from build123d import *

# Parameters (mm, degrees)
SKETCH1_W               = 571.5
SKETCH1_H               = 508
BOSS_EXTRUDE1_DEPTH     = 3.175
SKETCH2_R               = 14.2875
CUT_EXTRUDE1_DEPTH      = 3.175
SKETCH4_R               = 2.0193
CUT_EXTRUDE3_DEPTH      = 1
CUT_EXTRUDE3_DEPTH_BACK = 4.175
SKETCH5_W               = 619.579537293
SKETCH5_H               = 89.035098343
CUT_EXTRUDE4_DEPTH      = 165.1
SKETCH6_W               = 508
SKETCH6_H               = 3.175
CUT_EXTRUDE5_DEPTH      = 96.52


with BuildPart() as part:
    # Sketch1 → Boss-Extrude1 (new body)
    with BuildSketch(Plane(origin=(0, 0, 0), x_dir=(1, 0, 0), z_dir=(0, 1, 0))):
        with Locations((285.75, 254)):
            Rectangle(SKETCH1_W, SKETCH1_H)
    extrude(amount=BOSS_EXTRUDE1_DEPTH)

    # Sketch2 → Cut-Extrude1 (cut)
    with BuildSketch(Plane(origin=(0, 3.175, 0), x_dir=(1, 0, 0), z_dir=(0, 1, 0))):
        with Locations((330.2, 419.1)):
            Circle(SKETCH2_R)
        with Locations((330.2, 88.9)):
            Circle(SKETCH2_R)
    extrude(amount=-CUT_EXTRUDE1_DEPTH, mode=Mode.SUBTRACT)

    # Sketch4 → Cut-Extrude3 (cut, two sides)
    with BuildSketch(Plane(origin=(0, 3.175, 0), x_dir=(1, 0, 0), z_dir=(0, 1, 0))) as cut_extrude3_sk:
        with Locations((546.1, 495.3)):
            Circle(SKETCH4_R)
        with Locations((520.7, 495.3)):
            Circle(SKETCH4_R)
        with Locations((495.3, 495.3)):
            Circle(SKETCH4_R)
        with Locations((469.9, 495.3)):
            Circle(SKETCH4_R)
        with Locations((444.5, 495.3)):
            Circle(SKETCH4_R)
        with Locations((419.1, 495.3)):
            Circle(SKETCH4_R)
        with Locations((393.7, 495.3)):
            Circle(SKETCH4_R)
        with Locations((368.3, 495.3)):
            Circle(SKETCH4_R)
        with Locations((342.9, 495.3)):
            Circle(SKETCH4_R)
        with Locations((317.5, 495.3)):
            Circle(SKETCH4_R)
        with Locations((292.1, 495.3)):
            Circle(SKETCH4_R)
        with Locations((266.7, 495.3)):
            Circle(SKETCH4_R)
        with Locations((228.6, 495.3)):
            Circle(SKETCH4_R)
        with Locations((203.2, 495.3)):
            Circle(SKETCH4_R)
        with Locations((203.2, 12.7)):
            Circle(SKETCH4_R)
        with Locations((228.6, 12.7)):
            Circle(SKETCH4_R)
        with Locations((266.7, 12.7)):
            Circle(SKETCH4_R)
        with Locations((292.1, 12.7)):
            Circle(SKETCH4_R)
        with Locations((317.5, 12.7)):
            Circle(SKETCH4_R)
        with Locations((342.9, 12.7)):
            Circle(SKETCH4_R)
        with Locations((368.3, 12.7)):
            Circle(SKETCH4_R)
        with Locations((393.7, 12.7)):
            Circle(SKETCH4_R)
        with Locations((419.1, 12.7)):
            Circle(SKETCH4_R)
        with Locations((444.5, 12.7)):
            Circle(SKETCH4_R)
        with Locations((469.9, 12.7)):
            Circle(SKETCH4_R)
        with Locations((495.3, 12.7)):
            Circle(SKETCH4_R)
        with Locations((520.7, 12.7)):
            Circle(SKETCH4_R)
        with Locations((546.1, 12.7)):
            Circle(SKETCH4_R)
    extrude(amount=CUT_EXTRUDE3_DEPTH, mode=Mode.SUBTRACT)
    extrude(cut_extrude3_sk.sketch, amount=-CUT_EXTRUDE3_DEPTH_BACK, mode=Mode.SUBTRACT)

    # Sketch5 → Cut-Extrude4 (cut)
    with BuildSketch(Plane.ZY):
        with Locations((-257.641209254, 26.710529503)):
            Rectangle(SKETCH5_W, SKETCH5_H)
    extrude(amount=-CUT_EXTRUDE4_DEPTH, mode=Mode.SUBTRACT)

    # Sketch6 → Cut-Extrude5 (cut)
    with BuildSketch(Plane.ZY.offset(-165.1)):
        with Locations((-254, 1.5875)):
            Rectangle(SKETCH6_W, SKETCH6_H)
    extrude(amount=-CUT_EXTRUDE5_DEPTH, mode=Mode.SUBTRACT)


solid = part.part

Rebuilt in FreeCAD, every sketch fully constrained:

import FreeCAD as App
import Part
import Sketcher
Q = App.Units.Quantity


def add_polygon(sketch, points):
    """Adds a closed chain of lines whose ends are joined by coincident constraints."""
    first, n = sketch.GeometryCount, len(points)
    for a, b in zip(points, points[1:] + points[:1]):
        sketch.addGeometry(Part.LineSegment(App.Vector(*a, 0), App.Vector(*b, 0)), False)
    for i in range(n):
        sketch.addConstraint(Sketcher.Constraint("Coincident", first + i, 2, first + (i + 1) % n, 1))

doc = App.newDocument("Part")
body = doc.addObject("PartDesign::Body", "Body")

# Sketch on XZ plane
sketch1 = body.newObject("Sketcher::SketchObject", "Sketch")
sketch1.AttachmentSupport = (doc.getObject("XZ_Plane"), [""])
sketch1.MapMode = "FlatFace"
add_polygon(sketch1, [(0, -508), (0, 0), (571.5, 0), (571.5, -508)])  # lines 0-3
sketch1.addConstraint(Sketcher.Constraint("Vertical", 0))
sketch1.addConstraint(Sketcher.Constraint("Horizontal", 1))
sketch1.addConstraint(Sketcher.Constraint("Vertical", 2))
sketch1.addConstraint(Sketcher.Constraint("Horizontal", 3))
sketch1.addConstraint(Sketcher.Constraint("Coincident", 0, 2, -1, 1))
sketch1.addConstraint(Sketcher.Constraint("DistanceY", 0, 1, 0, 2, Q("20 in")))
sketch1.addConstraint(Sketcher.Constraint("DistanceX", 1, 1, 1, 2, Q("22.5 in")))
pad1 = body.newObject("PartDesign::Pad", "Pad")
pad1.Profile = sketch1
pad1.Length = Q("0.125 in")
pad1.Reversed = True

# Sketch on XZ plane
sketch2 = body.newObject("Sketcher::SketchObject", "Sketch001")
sketch2.AttachmentSupport = (doc.getObject("XZ_Plane"), [""])
sketch2.MapMode = "FlatFace"
sketch2.AttachmentOffset = App.Placement(App.Vector(0, 0, -0.125 * 25.4), App.Rotation())
sketch2.addGeometry(Part.Circle(App.Vector(330.2, -419.1, 0), App.Vector(0, 0, 1), 14.2875), False)
sketch2.addGeometry(Part.Circle(App.Vector(330.2, -88.9, 0), App.Vector(0, 0, 1), 14.2875), False)
sketch2.addConstraint(Sketcher.Constraint("Equal", 0, 1))
sketch2.addConstraint(Sketcher.Constraint("Vertical", 0, 3, 1, 3))
sketch2.addConstraint(Sketcher.Constraint("Diameter", 0, Q("1.125 in")))
sketch2.addConstraint(Sketcher.Constraint("DistanceX", -1, 1, 0, 3, Q("13 in")))
sketch2.addConstraint(Sketcher.Constraint("DistanceY", 0, 3, 1, 3, Q("13 in")))
sketch2.addConstraint(Sketcher.Constraint("DistanceY", 0, 3, -1, 1, Q("16.5 in")))
pocket1 = body.newObject("PartDesign::Pocket", "Pocket")
pocket1.Profile = sketch2
pocket1.Length = Q("0.125 in")
pocket1.Reversed = True

# Sketch on XZ plane
sketch3 = body.newObject("Sketcher::SketchObject", "Sketch002")
sketch3.AttachmentSupport = (doc.getObject("XZ_Plane"), [""])
sketch3.MapMode = "FlatFace"
sketch3.AttachmentOffset = App.Placement(App.Vector(0, 0, -0.125 * 25.4), App.Rotation())
sketch3.addGeometry(Part.Circle(App.Vector(546.1, -495.3, 0), App.Vector(0, 0, 1), 2.0193), False)
sketch3.addGeometry(Part.Circle(App.Vector(520.7, -495.3, 0), App.Vector(0, 0, 1), 2.0193), False)
sketch3.addGeometry(Part.Circle(App.Vector(495.3, -495.3, 0), App.Vector(0, 0, 1), 2.0193), False)
sketch3.addGeometry(Part.Circle(App.Vector(469.9, -495.3, 0), App.Vector(0, 0, 1), 2.0193), False)
sketch3.addGeometry(Part.Circle(App.Vector(444.5, -495.3, 0), App.Vector(0, 0, 1), 2.0193), False)
sketch3.addGeometry(Part.Circle(App.Vector(419.1, -495.3, 0), App.Vector(0, 0, 1), 2.0193), False)
sketch3.addGeometry(Part.Circle(App.Vector(393.7, -495.3, 0), App.Vector(0, 0, 1), 2.0193), False)
sketch3.addGeometry(Part.Circle(App.Vector(368.3, -495.3, 0), App.Vector(0, 0, 1), 2.0193), False)
sketch3.addGeometry(Part.Circle(App.Vector(342.9, -495.3, 0), App.Vector(0, 0, 1), 2.0193), False)
sketch3.addGeometry(Part.Circle(App.Vector(317.5, -495.3, 0), App.Vector(0, 0, 1), 2.0193), False)
sketch3.addGeometry(Part.Circle(App.Vector(292.1, -495.3, 0), App.Vector(0, 0, 1), 2.0193), False)
sketch3.addGeometry(Part.Circle(App.Vector(266.7, -495.3, 0), App.Vector(0, 0, 1), 2.0193), False)
sketch3.addGeometry(Part.Circle(App.Vector(228.6, -495.3, 0), App.Vector(0, 0, 1), 2.0193), False)
sketch3.addGeometry(Part.Circle(App.Vector(203.2, -495.3, 0), App.Vector(0, 0, 1), 2.0193), False)
sketch3.addGeometry(Part.Circle(App.Vector(203.2, -12.7, 0), App.Vector(0, 0, 1), 2.0193), False)
sketch3.addGeometry(Part.Circle(App.Vector(228.6, -12.7, 0), App.Vector(0, 0, 1), 2.0193), False)
sketch3.addGeometry(Part.Circle(App.Vector(266.7, -12.7, 0), App.Vector(0, 0, 1), 2.0193), False)
sketch3.addGeometry(Part.Circle(App.Vector(292.1, -12.7, 0), App.Vector(0, 0, 1), 2.0193), False)
sketch3.addGeometry(Part.Circle(App.Vector(317.5, -12.7, 0), App.Vector(0, 0, 1), 2.0193), False)
sketch3.addGeometry(Part.Circle(App.Vector(342.9, -12.7, 0), App.Vector(0, 0, 1), 2.0193), False)
sketch3.addGeometry(Part.Circle(App.Vector(368.3, -12.7, 0), App.Vector(0, 0, 1), 2.0193), False)
sketch3.addGeometry(Part.Circle(App.Vector(393.7, -12.7, 0), App.Vector(0, 0, 1), 2.0193), False)
sketch3.addGeometry(Part.Circle(App.Vector(419.1, -12.7, 0), App.Vector(0, 0, 1), 2.0193), False)
sketch3.addGeometry(Part.Circle(App.Vector(444.5, -12.7, 0), App.Vector(0, 0, 1), 2.0193), False)
sketch3.addGeometry(Part.Circle(App.Vector(469.9, -12.7, 0), App.Vector(0, 0, 1), 2.0193), False)
sketch3.addGeometry(Part.Circle(App.Vector(495.3, -12.7, 0), App.Vector(0, 0, 1), 2.0193), False)
sketch3.addGeometry(Part.Circle(App.Vector(520.7, -12.7, 0), App.Vector(0, 0, 1), 2.0193), False)
sketch3.addGeometry(Part.Circle(App.Vector(546.1, -12.7, 0), App.Vector(0, 0, 1), 2.0193), False)
sketch3.addConstraint(Sketcher.Constraint("Equal", 0, 1))
sketch3.addConstraint(Sketcher.Constraint("Equal", 1, 2))
sketch3.addConstraint(Sketcher.Constraint("Equal", 2, 3))
sketch3.addConstraint(Sketcher.Constraint("Equal", 3, 4))
sketch3.addConstraint(Sketcher.Constraint("Equal", 4, 5))
sketch3.addConstraint(Sketcher.Constraint("Equal", 5, 6))
sketch3.addConstraint(Sketcher.Constraint("Equal", 6, 7))
sketch3.addConstraint(Sketcher.Constraint("Equal", 7, 8))
sketch3.addConstraint(Sketcher.Constraint("Equal", 8, 9))
sketch3.addConstraint(Sketcher.Constraint("Equal", 9, 10))
sketch3.addConstraint(Sketcher.Constraint("Equal", 10, 11))
sketch3.addConstraint(Sketcher.Constraint("Equal", 11, 12))
sketch3.addConstraint(Sketcher.Constraint("Equal", 12, 13))
sketch3.addConstraint(Sketcher.Constraint("Equal", 13, 14))
sketch3.addConstraint(Sketcher.Constraint("Equal", 14, 15))
sketch3.addConstraint(Sketcher.Constraint("Equal", 15, 16))
sketch3.addConstraint(Sketcher.Constraint("Equal", 16, 17))
sketch3.addConstraint(Sketcher.Constraint("Equal", 17, 18))
sketch3.addConstraint(Sketcher.Constraint("Equal", 18, 19))
sketch3.addConstraint(Sketcher.Constraint("Equal", 19, 20))
sketch3.addConstraint(Sketcher.Constraint("Equal", 20, 21))
sketch3.addConstraint(Sketcher.Constraint("Equal", 21, 22))
sketch3.addConstraint(Sketcher.Constraint("Equal", 22, 23))
sketch3.addConstraint(Sketcher.Constraint("Equal", 23, 24))
sketch3.addConstraint(Sketcher.Constraint("Equal", 24, 25))
sketch3.addConstraint(Sketcher.Constraint("Equal", 25, 26))
sketch3.addConstraint(Sketcher.Constraint("Equal", 26, 27))
sketch3.addConstraint(Sketcher.Constraint("Horizontal", 0, 3, 1, 3))
sketch3.addConstraint(Sketcher.Constraint("Horizontal", 1, 3, 2, 3))
sketch3.addConstraint(Sketcher.Constraint("Horizontal", 2, 3, 3, 3))
sketch3.addConstraint(Sketcher.Constraint("Horizontal", 3, 3, 4, 3))
sketch3.addConstraint(Sketcher.Constraint("Horizontal", 4, 3, 5, 3))
sketch3.addConstraint(Sketcher.Constraint("Horizontal", 5, 3, 6, 3))
sketch3.addConstraint(Sketcher.Constraint("Horizontal", 6, 3, 7, 3))
sketch3.addConstraint(Sketcher.Constraint("Horizontal", 7, 3, 8, 3))
sketch3.addConstraint(Sketcher.Constraint("Horizontal", 8, 3, 9, 3))
sketch3.addConstraint(Sketcher.Constraint("Horizontal", 9, 3, 10, 3))
sketch3.addConstraint(Sketcher.Constraint("Horizontal", 10, 3, 11, 3))
sketch3.addConstraint(Sketcher.Constraint("Horizontal", 11, 3, 12, 3))
sketch3.addConstraint(Sketcher.Constraint("Horizontal", 12, 3, 13, 3))
sketch3.addConstraint(Sketcher.Constraint("Horizontal", 14, 3, 15, 3))
sketch3.addConstraint(Sketcher.Constraint("Horizontal", 15, 3, 16, 3))
sketch3.addConstraint(Sketcher.Constraint("Horizontal", 16, 3, 17, 3))
sketch3.addConstraint(Sketcher.Constraint("Horizontal", 17, 3, 18, 3))
sketch3.addConstraint(Sketcher.Constraint("Horizontal", 18, 3, 19, 3))
sketch3.addConstraint(Sketcher.Constraint("Horizontal", 19, 3, 20, 3))
sketch3.addConstraint(Sketcher.Constraint("Horizontal", 20, 3, 21, 3))
sketch3.addConstraint(Sketcher.Constraint("Horizontal", 21, 3, 22, 3))
sketch3.addConstraint(Sketcher.Constraint("Horizontal", 22, 3, 23, 3))
sketch3.addConstraint(Sketcher.Constraint("Horizontal", 23, 3, 24, 3))
sketch3.addConstraint(Sketcher.Constraint("Horizontal", 24, 3, 25, 3))
sketch3.addConstraint(Sketcher.Constraint("Horizontal", 25, 3, 26, 3))
sketch3.addConstraint(Sketcher.Constraint("Horizontal", 26, 3, 27, 3))
sketch3.addConstraint(Sketcher.Constraint("Vertical", 13, 3, 14, 3))
sketch3.addConstraint(Sketcher.Constraint("Vertical", 12, 3, 15, 3))
sketch3.addConstraint(Sketcher.Constraint("Vertical", 11, 3, 16, 3))
sketch3.addConstraint(Sketcher.Constraint("Vertical", 10, 3, 17, 3))
sketch3.addConstraint(Sketcher.Constraint("Vertical", 9, 3, 18, 3))
sketch3.addConstraint(Sketcher.Constraint("Vertical", 8, 3, 19, 3))
sketch3.addConstraint(Sketcher.Constraint("Vertical", 7, 3, 20, 3))
sketch3.addConstraint(Sketcher.Constraint("Vertical", 6, 3, 21, 3))
sketch3.addConstraint(Sketcher.Constraint("Vertical", 5, 3, 22, 3))
sketch3.addConstraint(Sketcher.Constraint("Vertical", 4, 3, 23, 3))
sketch3.addConstraint(Sketcher.Constraint("Vertical", 3, 3, 24, 3))
sketch3.addConstraint(Sketcher.Constraint("Vertical", 2, 3, 25, 3))
sketch3.addConstraint(Sketcher.Constraint("Vertical", 1, 3, 26, 3))
sketch3.addConstraint(Sketcher.Constraint("Vertical", 0, 3, 27, 3))
sketch3.addConstraint(Sketcher.Constraint("Diameter", 0, Q("0.159 in")))
sketch3.addConstraint(Sketcher.Constraint("DistanceX", -1, 1, 12, 3, Q("9 in")))
sketch3.addConstraint(Sketcher.Constraint("DistanceX", -1, 1, 13, 3, Q("8 in")))
sketch3.addConstraint(Sketcher.Constraint("DistanceX", 1, 3, 0, 3, Q("1 in")))
sketch3.addConstraint(Sketcher.Constraint("DistanceX", 2, 3, 1, 3, Q("1 in")))
sketch3.addConstraint(Sketcher.Constraint("DistanceX", 3, 3, 2, 3, Q("1 in")))
sketch3.addConstraint(Sketcher.Constraint("DistanceX", 4, 3, 3, 3, Q("1 in")))
sketch3.addConstraint(Sketcher.Constraint("DistanceX", 5, 3, 4, 3, Q("1 in")))
sketch3.addConstraint(Sketcher.Constraint("DistanceX", 6, 3, 5, 3, Q("1 in")))
sketch3.addConstraint(Sketcher.Constraint("DistanceX", 7, 3, 6, 3, Q("1 in")))
sketch3.addConstraint(Sketcher.Constraint("DistanceX", 8, 3, 7, 3, Q("1 in")))
sketch3.addConstraint(Sketcher.Constraint("DistanceX", 9, 3, 8, 3, Q("1 in")))
sketch3.addConstraint(Sketcher.Constraint("DistanceX", 10, 3, 9, 3, Q("1 in")))
sketch3.addConstraint(Sketcher.Constraint("DistanceX", 11, 3, 10, 3, Q("1 in")))
sketch3.addConstraint(Sketcher.Constraint("DistanceY", 13, 3, 14, 3, Q("19 in")))
sketch3.addConstraint(Sketcher.Constraint("DistanceX", -1, 1, 0, 3, Q("21.5 in")))
sketch3.addConstraint(Sketcher.Constraint("DistanceY", 0, 3, -1, 1, Q("19.5 in")))
pocket2 = body.newObject("PartDesign::Pocket", "Pocket001")
pocket2.Profile = sketch3
pocket2.Type = "ThroughAll"
pocket2.Midplane = True

# Sketch on YZ plane
sketch4 = body.newObject("Sketcher::SketchObject", "Sketch003")
sketch4.AttachmentSupport = (doc.getObject("YZ_Plane"), [""])
sketch4.MapMode = "FlatFace"
add_polygon(sketch4, [(71.228079, -567.430978), (-17.80702, -567.430978), (-17.80702, 52.148559), (71.228079, 52.148559)])  # lines 0-3
sketch4.addConstraint(Sketcher.Constraint("Horizontal", 0))
sketch4.addConstraint(Sketcher.Constraint("Vertical", 1))
sketch4.addConstraint(Sketcher.Constraint("Horizontal", 2))
sketch4.addConstraint(Sketcher.Constraint("Vertical", 3))
sketch4.addConstraint(Sketcher.Constraint("DistanceX", 0, 2, 0, 1, Q("89.035098 mm")))
sketch4.addConstraint(Sketcher.Constraint("DistanceY", 1, 1, 1, 2, Q("619.579537 mm")))
sketch4.addConstraint(Sketcher.Constraint("DistanceX", 0, 2, -1, 1, Q("17.80702 mm")))
sketch4.addConstraint(Sketcher.Constraint("DistanceY", -1, 1, 1, 2, Q("52.148559 mm")))
pocket3 = body.newObject("PartDesign::Pocket", "Pocket002")
pocket3.Profile = sketch4
pocket3.Length = Q("6.5 in")
pocket3.Reversed = True

# Sketch on YZ plane
sketch5 = body.newObject("Sketcher::SketchObject", "Sketch004")
sketch5.AttachmentSupport = (doc.getObject("YZ_Plane"), [""])
sketch5.MapMode = "FlatFace"
sketch5.AttachmentOffset = App.Placement(App.Vector(0, 0, 6.5 * 25.4), App.Rotation())
add_polygon(sketch5, [(3.175, -508), (0, -508), (0, 0), (3.175, 0)])  # lines 0-3
sketch5.addConstraint(Sketcher.Constraint("Horizontal", 0))
sketch5.addConstraint(Sketcher.Constraint("Vertical", 1))
sketch5.addConstraint(Sketcher.Constraint("Horizontal", 2))
sketch5.addConstraint(Sketcher.Constraint("Vertical", 3))
sketch5.addConstraint(Sketcher.Constraint("Coincident", 1, 2, -1, 1))
sketch5.addConstraint(Sketcher.Constraint("DistanceY", 1, 1, 1, 2, Q("20 in")))
sketch5.addConstraint(Sketcher.Constraint("DistanceX", 0, 2, 0, 1, Q("0.125 in")))
pocket4 = body.newObject("PartDesign::Pocket", "Pocket003")
pocket4.Profile = sketch5
pocket4.Length = Q("3.8 in")
pocket4.Reversed = True

doc.recompute()
